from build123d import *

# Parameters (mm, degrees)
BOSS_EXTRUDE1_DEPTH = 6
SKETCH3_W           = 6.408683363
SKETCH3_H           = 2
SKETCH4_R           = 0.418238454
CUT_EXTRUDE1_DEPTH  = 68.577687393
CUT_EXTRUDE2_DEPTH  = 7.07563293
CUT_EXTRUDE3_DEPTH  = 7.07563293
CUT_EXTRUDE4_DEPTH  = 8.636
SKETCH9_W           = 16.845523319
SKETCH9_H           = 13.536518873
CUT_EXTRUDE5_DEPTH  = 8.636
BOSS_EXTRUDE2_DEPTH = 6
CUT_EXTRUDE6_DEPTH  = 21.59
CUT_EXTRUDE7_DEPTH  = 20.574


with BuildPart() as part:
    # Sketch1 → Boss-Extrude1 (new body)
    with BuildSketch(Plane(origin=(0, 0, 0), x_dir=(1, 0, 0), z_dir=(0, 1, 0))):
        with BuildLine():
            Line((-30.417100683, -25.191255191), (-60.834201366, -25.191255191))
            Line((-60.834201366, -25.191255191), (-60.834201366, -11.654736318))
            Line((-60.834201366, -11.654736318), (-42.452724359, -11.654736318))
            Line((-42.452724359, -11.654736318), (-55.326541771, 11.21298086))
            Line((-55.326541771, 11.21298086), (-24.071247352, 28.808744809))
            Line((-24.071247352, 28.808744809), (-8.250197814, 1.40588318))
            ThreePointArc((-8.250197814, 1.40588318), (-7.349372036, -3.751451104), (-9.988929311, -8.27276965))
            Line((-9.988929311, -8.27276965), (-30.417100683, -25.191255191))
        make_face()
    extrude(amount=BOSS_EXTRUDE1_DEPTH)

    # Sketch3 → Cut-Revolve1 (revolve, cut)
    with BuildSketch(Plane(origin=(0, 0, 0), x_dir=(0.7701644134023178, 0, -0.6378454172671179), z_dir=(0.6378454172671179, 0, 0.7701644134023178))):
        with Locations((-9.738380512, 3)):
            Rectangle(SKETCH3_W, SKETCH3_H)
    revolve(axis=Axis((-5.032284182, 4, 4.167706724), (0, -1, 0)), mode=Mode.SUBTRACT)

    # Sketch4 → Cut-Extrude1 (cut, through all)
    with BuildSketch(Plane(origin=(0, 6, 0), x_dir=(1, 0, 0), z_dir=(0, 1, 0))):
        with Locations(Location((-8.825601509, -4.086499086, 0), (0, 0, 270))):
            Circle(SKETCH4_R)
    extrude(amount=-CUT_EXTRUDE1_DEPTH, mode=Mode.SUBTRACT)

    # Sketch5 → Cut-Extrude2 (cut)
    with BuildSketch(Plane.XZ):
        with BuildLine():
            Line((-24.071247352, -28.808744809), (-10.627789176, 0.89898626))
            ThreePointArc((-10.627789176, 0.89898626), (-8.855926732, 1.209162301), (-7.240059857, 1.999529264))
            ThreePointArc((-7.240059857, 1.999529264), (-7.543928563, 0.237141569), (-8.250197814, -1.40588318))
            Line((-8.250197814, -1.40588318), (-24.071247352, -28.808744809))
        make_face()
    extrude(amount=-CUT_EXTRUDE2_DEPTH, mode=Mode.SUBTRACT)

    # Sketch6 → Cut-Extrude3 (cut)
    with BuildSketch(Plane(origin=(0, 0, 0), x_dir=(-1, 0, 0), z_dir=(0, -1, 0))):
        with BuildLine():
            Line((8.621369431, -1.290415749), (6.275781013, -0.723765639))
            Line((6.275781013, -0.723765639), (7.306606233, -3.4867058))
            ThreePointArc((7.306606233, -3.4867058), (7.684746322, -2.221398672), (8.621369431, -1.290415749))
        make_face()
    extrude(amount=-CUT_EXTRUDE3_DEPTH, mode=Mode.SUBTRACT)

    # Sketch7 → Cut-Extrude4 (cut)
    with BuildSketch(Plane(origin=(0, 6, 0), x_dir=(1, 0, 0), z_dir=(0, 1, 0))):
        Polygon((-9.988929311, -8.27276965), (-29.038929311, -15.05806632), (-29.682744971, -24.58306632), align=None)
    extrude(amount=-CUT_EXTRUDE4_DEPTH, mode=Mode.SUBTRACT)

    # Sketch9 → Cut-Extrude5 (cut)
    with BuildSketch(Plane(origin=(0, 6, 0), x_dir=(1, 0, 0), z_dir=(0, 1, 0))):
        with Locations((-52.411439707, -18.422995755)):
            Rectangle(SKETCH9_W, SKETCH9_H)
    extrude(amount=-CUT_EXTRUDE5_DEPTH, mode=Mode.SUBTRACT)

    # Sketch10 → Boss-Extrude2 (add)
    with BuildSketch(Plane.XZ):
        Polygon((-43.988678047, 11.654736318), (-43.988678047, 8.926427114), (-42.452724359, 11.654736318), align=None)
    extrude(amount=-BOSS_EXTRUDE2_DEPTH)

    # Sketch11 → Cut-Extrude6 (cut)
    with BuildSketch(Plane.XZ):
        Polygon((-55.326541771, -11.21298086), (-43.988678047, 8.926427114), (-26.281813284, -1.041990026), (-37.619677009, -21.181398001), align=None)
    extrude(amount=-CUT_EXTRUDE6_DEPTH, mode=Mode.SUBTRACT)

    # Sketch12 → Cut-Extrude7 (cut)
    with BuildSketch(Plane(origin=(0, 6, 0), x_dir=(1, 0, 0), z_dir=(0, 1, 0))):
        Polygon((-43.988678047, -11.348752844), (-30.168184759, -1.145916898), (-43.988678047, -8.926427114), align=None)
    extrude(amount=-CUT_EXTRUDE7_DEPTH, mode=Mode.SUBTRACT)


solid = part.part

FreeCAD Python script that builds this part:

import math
import FreeCAD as App
import Part
import Sketcher
from FreeCAD import Vector
Q = App.Units.Quantity

doc = App.newDocument("Part")
body = doc.addObject("PartDesign::Body", "Body")

# Sketch on XZ plane
sketch1 = body.newObject("Sketcher::SketchObject", "Sketch")
sketch1.AttachmentSupport = (doc.getObject("XZ_Plane"), [""])
sketch1.MapMode = "FlatFace"
sketch1.addGeometry(Part.LineSegment(Vector(-61, 25, 0), Vector(-30, 25, 0)), False)
sketch1.addGeometry(Part.LineSegment(Vector(-30, 25, 0), Vector(-10, 8, 0)), False)
sketch1.addGeometry(Part.ArcOfCircle(Part.Circle(Vector(-15, 2, 0), Vector(0, 0, 1), 8), math.radians(-30), math.radians(50)), False)
sketch1.addGeometry(Part.LineSegment(Vector(-8, -1, 0), Vector(-24, -29, 0)), False)
sketch1.addGeometry(Part.LineSegment(Vector(-24, -29, 0), Vector(-55, -11, 0)), False)
sketch1.addGeometry(Part.LineSegment(Vector(-55, -11, 0), Vector(-42, 12, 0)), False)
sketch1.addGeometry(Part.LineSegment(Vector(-42, 12, 0), Vector(-61, 12, 0)), False)
sketch1.addGeometry(Part.LineSegment(Vector(-61, 12, 0), Vector(-61, 25, 0)), False)
sketch1.addConstraint(Sketcher.Constraint("Coincident", 0, 2, 1, 1))
sketch1.addConstraint(Sketcher.Constraint("Tangent", 1, 2, 2, 2))
sketch1.addConstraint(Sketcher.Constraint("Tangent", 2, 1, 3, 1))
sketch1.addConstraint(Sketcher.Constraint("Coincident", 3, 2, 4, 1))
sketch1.addConstraint(Sketcher.Constraint("Coincident", 4, 2, 5, 1))
sketch1.addConstraint(Sketcher.Constraint("Coincident", 5, 2, 6, 1))
sketch1.addConstraint(Sketcher.Constraint("Coincident", 6, 2, 7, 1))
sketch1.addConstraint(Sketcher.Constraint("Coincident", 7, 2, 0, 1))
sketch1.addConstraint(Sketcher.Constraint("Horizontal", 0))
sketch1.addConstraint(Sketcher.Constraint("Horizontal", 6))
sketch1.addConstraint(Sketcher.Constraint("Vertical", 7))
sketch1.addConstraint(Sketcher.Constraint("Perpendicular", 4, 5))
sketch1.addConstraint(Sketcher.Constraint("Radius", 2, Q("0.3 in")))
sketch1.addConstraint(Sketcher.Constraint("Angle", 3, Q("-120 deg")))
sketch1.addConstraint(Sketcher.Constraint("DistanceX", 0, 1, 0, 2, Q("30.417101 mm")))
sketch1.addConstraint(Sketcher.Constraint("Distance", 3, Q("31.642099 mm")))
sketch1.addConstraint(Sketcher.Constraint("DistanceY", 7, 1, 7, 2, Q("13.536519 mm")))
sketch1.addConstraint(Sketcher.Constraint("DistanceX", 0, 2, -1, 1, Q("30.417101 mm")))
sketch1.addConstraint(Sketcher.Constraint("DistanceY", 3, 2, 0, 2, Q("54 mm")))
sketch1.addConstraint(Sketcher.Constraint("Distance", 1, Q("26.524429 mm")))
sketch1.addConstraint(Sketcher.Constraint("Distance", 5, Q("26.242478 mm")))
sketch1.addConstraint(Sketcher.Constraint("DistanceX", 6, 2, 6, 1, Q("18.381477 mm")))
sketch1.addConstraint(Sketcher.Constraint("DistanceY", -1, 1, 1, 2, Q("8.27277 mm")))
pad1 = body.newObject("PartDesign::Pad", "Pad")
pad1.Profile = sketch1
pad1.Length = 6
pad1.Reversed = True

# Sketch on an angled plane
sketch2 = body.newObject("Sketcher::SketchObject", "Sketch001")
sketch2.Placement = App.Placement(Vector(0, 0, 0), App.Rotation(Vector(0.770164413, 0, -0.637845417), Vector(0, 0.999999999, 0), Vector(0.637845417, 0, 0.770164413), "ZXY"))
sketch2.addGeometry(Part.LineSegment(Vector(-12.9, 4, 0), Vector(-12.9, 2, 0)), False)
sketch2.addGeometry(Part.LineSegment(Vector(-12.9, 2, 0), Vector(-6.5, 2, 0)), False)
sketch2.addGeometry(Part.LineSegment(Vector(-6.5, 2, 0), Vector(-6.5, 4, 0)), False)
sketch2.addGeometry(Part.LineSegment(Vector(-6.5, 4, 0), Vector(-12.9, 4, 0)), False)
sketch2.addGeometry(Part.LineSegment(Vector(-6.5, 4, 0), Vector(-6.5, 2, 0)), True)  # axis
sketch2.addConstraint(Sketcher.Constraint("Coincident", 0, 2, 1, 1))
sketch2.addConstraint(Sketcher.Constraint("Coincident", 1, 2, 2, 1))
sketch2.addConstraint(Sketcher.Constraint("Coincident", 2, 2, 3, 1))
sketch2.addConstraint(Sketcher.Constraint("Coincident", 3, 2, 0, 1))
sketch2.addConstraint(Sketcher.Constraint("Vertical", 0))
sketch2.addConstraint(Sketcher.Constraint("Horizontal", 1))
sketch2.addConstraint(Sketcher.Constraint("Vertical", 2))
sketch2.addConstraint(Sketcher.Constraint("Horizontal", 3))
sketch2.addConstraint(Sketcher.Constraint("Vertical", 4))
sketch2.addConstraint(Sketcher.Constraint("Coincident", 4, 1, 2, 2))
sketch2.addConstraint(Sketcher.Constraint("Horizontal", 0, 2, 4, 2))
sketch2.addConstraint(Sketcher.Constraint("DistanceY", 0, 2, 0, 1, Q("2 mm")))
sketch2.addConstraint(Sketcher.Constraint("DistanceY", -1, 1, 0, 2, Q("2 mm")))
sketch2.addConstraint(Sketcher.Constraint("DistanceX", 1, 1, 1, 2, Q("6.408683 mm")))
sketch2.addConstraint(Sketcher.Constraint("DistanceX", 1, 2, -1, 1, Q("6.534039 mm")))
groove = body.newObject("PartDesign::Groove", "Groove")
groove.Profile = sketch2
groove.ReferenceAxis = (sketch2, ["Axis0"])
groove.Angle = 360

# Sketch on XZ plane
sketch3 = body.newObject("Sketcher::SketchObject", "Sketch002")
sketch3.AttachmentSupport = (doc.getObject("XZ_Plane"), [""])
sketch3.MapMode = "FlatFace"
sketch3.AttachmentOffset = App.Placement(Vector(0, 0, -6), App.Rotation())
sketch3.addGeometry(Part.Circle(Vector(-8.83, 4.09, 0), Vector(0, 0, 1), 0.42), False)
sketch3.addConstraint(Sketcher.Constraint("Diameter", 0, Q("0.836477 mm")))
sketch3.addConstraint(Sketcher.Constraint("DistanceX", 0, 3, -1, 1, Q("8.825602 mm")))
sketch3.addConstraint(Sketcher.Constraint("DistanceY", -1, 1, 0, 3, Q("4.086499 mm")))
pocket1 = body.newObject("PartDesign::Pocket", "Pocket")
pocket1.Profile = sketch3
pocket1.Type = "ThroughAll"
pocket1.Reversed = True

# Sketch on XZ plane
sketch4 = body.newObject("Sketcher::SketchObject", "Sketch003")
sketch4.AttachmentSupport = (doc.getObject("XZ_Plane"), [""])
sketch4.MapMode = "FlatFace"
sketch4.addGeometry(Part.LineSegment(Vector(-10.6, 0.9, 0), Vector(-24.1, -28.8, 0)), False)
sketch4.addGeometry(Part.LineSegment(Vector(-24.1, -28.8, 0), Vector(-8.3, -1.4, 0)), False)
sketch4.addGeometry(Part.ArcOfCircle(Part.Circle(Vector(-14.8, 2.4, 0), Vector(0, 0, 1), 7.6), math.radians(-30), math.radians(-3)), False)
sketch4.addGeometry(Part.ArcOfCircle(Part.Circle(Vector(-10.8, 7.3, 0), Vector(0, 0, 1), 6.4), math.radians(-88), math.radians(-56)), False)
sketch4.addConstraint(Sketcher.Constraint("Coincident", 0, 2, 1, 1))
sketch4.addConstraint(Sketcher.Constraint("Tangent", 1, 2, 2, 1))
sketch4.addConstraint(Sketcher.Constraint("Coincident", 2, 2, 3, 2))
sketch4.addConstraint(Sketcher.Constraint("Coincident", 3, 1, 0, 1))
sketch4.addConstraint(Sketcher.Constraint("Radius", 2, Q("0.3 in")))
sketch4.addConstraint(Sketcher.Constraint("Angle", 1, Q("60 deg")))
sketch4.addConstraint(Sketcher.Constraint("Radius", 3, Q("6.408683 mm")))
sketch4.addConstraint(Sketcher.Constraint("Distance", 1, Q("31.642099 mm")))
sketch4.addConstraint(Sketcher.Constraint("DistanceX", 3, 3, -1, 1, Q("10.835998 mm")))
sketch4.addConstraint(Sketcher.Constraint("DistanceX", 3, 3, 1, 2, Q("2.5858 mm")))
sketch4.addConstraint(Sketcher.Constraint("DistanceY", 3, 1, 3, 3, Q("6.4053 mm")))
sketch4.addConstraint(Sketcher.Constraint("Distance", 0, Q("32.607911 mm")))
sketch4.addConstraint(Sketcher.Constraint("DistanceY", -1, 1, 2, 2, Q("1.999529 mm")))
pocket2 = body.newObject("PartDesign::Pocket", "Pocket001")
pocket2.Profile = sketch4
pocket2.Length = 7.075633

# Sketch on XZ plane
sketch5 = body.newObject("Sketcher::SketchObject", "Sketch004")
sketch5.AttachmentSupport = (doc.getObject("XZ_Plane"), [""])
sketch5.MapMode = "FlatFace"
sketch5.addGeometry(Part.LineSegment(Vector(-8.6, 1.3, 0), Vector(-6.3, 0.7, 0)), False)
sketch5.addGeometry(Part.LineSegment(Vector(-6.3, 0.7, 0), Vector(-7.3, 3.5, 0)), False)
sketch5.addGeometry(Part.ArcOfCircle(Part.Circle(Vector(-10, 3.6, 0), Vector(0, 0, 1), 2.7), math.radians(-59), math.radians(-2)), False)
sketch5.addConstraint(Sketcher.Constraint("Coincident", 0, 2, 1, 1))
sketch5.addConstraint(Sketcher.Constraint("Coincident", 1, 2, 2, 2))
sketch5.addConstraint(Sketcher.Constraint("Coincident", 2, 1, 0, 1))
sketch5.addConstraint(Sketcher.Constraint("Radius", 2, Q("2.679339 mm")))
sketch5.addConstraint(Sketcher.Constraint("DistanceX", 2, 3, -1, 1, Q("9.983649 mm")))
sketch5.addConstraint(Sketcher.Constraint("DistanceY", -1, 1, 2, 3, Q("3.597589 mm")))
sketch5.addConstraint(Sketcher.Constraint("DistanceX", 0, 2, -1, 1, Q("6.275781 mm")))
sketch5.addConstraint(Sketcher.Constraint("DistanceX", 2, 1, -1, 1, Q("8.621369 mm")))
sketch5.addConstraint(Sketcher.Constraint("DistanceY", 0, 2, 1, 2, Q("2.76294 mm")))
sketch5.addConstraint(Sketcher.Constraint("DistanceY", 0, 2, 2, 1, Q("0.56665 mm")))
pocket3 = body.newObject("PartDesign::Pocket", "Pocket002")
pocket3.Profile = sketch5
pocket3.Length = 7.075633

# Sketch on XZ plane
sketch6 = body.newObject("Sketcher::SketchObject", "Sketch005")
sketch6.AttachmentSupport = (doc.getObject("XZ_Plane"), [""])
sketch6.MapMode = "FlatFace"
sketch6.AttachmentOffset = App.Placement(Vector(0, 0, -6), App.Rotation())
sketch6.addGeometry(Part.LineSegment(Vector(-10, 8, 0), Vector(-29, 15, 0)), False)
sketch6.addGeometry(Part.LineSegment(Vector(-29, 15, 0), Vector(-30, 25, 0)), False)
sketch6.addGeometry(Part.LineSegment(Vector(-30, 25, 0), Vector(-10, 8, 0)), False)
sketch6.addConstraint(Sketcher.Constraint("Coincident", 0, 2, 1, 1))
sketch6.addConstraint(Sketcher.Constraint("Coincident", 1, 2, 2, 1))
sketch6.addConstraint(Sketcher.Constraint("Coincident", 2, 2, 0, 1))
sketch6.addConstraint(Sketcher.Constraint("DistanceX", 0, 2, 2, 2, Q("0.75 in")))
sketch6.addConstraint(Sketcher.Constraint("DistanceY", 0, 2, 1, 2, Q("0.375 in")))
sketch6.addConstraint(Sketcher.Constraint("DistanceX", 0, 2, -1, 1, Q("29.038929 mm")))
sketch6.addConstraint(Sketcher.Constraint("DistanceY", -1, 1, 2, 2, Q("8.27277 mm")))
sketch6.addConstraint(Sketcher.Constraint("Distance", 0, Q("20.222333 mm")))
sketch6.addConstraint(Sketcher.Constraint("Distance", 1, Q("9.546734 mm")))
pocket4 = body.newObject("PartDesign::Pocket", "Pocket003")
pocket4.Profile = sketch6
pocket4.Length = Q("0.34 in")
pocket4.Reversed = True

# Sketch on XZ plane
sketch7 = body.newObject("Sketcher::SketchObject", "Sketch006")
sketch7.AttachmentSupport = (doc.getObject("XZ_Plane"), [""])
sketch7.MapMode = "FlatFace"
sketch7.AttachmentOffset = App.Placement(Vector(0, 0, -6), App.Rotation())
sketch7.addGeometry(Part.LineSegment(Vector(-61, 12, 0), Vector(-61, 25, 0)), False)
sketch7.addGeometry(Part.LineSegment(Vector(-61, 25, 0), Vector(-44, 25, 0)), False)
sketch7.addGeometry(Part.LineSegment(Vector(-44, 25, 0), Vector(-44, 12, 0)), False)
sketch7.addGeometry(Part.LineSegment(Vector(-44, 12, 0), Vector(-61, 12, 0)), False)
sketch7.addConstraint(Sketcher.Constraint("Coincident", 0, 2, 1, 1))
sketch7.addConstraint(Sketcher.Constraint("Coincident", 1, 2, 2, 1))
sketch7.addConstraint(Sketcher.Constraint("Coincident", 2, 2, 3, 1))
sketch7.addConstraint(Sketcher.Constraint("Coincident", 3, 2, 0, 1))
sketch7.addConstraint(Sketcher.Constraint("Vertical", 0))
sketch7.addConstraint(Sketcher.Constraint("Horizontal", 1))
sketch7.addConstraint(Sketcher.Constraint("Vertical", 2))
sketch7.addConstraint(Sketcher.Constraint("Horizontal", 3))
sketch7.addConstraint(Sketcher.Constraint("DistanceY", 0, 1, 0, 2, Q("13.536519 mm")))
sketch7.addConstraint(Sketcher.Constraint("DistanceX", 0, 2, -1, 1, Q("60.834201 mm")))
sketch7.addConstraint(Sketcher.Constraint("DistanceX", 1, 1, 1, 2, Q("16.845523 mm")))
sketch7.addConstraint(Sketcher.Constraint("DistanceY", -1, 1, 0, 2, Q("25.191255 mm")))
pocket5 = body.newObject("PartDesign::Pocket", "Pocket004")
pocket5.Profile = sketch7
pocket5.Length = Q("0.34 in")
pocket5.Reversed = True

# Sketch on XZ plane
sketch8 = body.newObject("Sketcher::SketchObject", "Sketch007")
sketch8.AttachmentSupport = (doc.getObject("XZ_Plane"), [""])
sketch8.MapMode = "FlatFace"
sketch8.addGeometry(Part.LineSegment(Vector(-44, 11.7, 0), Vector(-44, 8.9, 0)), False)
sketch8.addGeometry(Part.LineSegment(Vector(-44, 8.9, 0), Vector(-42.5, 11.7, 0)), False)
sketch8.addGeometry(Part.LineSegment(Vector(-42.5, 11.7, 0), Vector(-44, 11.7, 0)), False)
sketch8.addConstraint(Sketcher.Constraint("Coincident", 0, 2, 1, 1))
sketch8.addConstraint(Sketcher.Constraint("Coincident", 1, 2, 2, 1))
sketch8.addConstraint(Sketcher.Constraint("Coincident", 2, 2, 0, 1))
sketch8.addConstraint(Sketcher.Constraint("Vertical", 0))
sketch8.addConstraint(Sketcher.Constraint("Horizontal", 2))
sketch8.addConstraint(Sketcher.Constraint("DistanceY", 0, 2, 0, 1, Q("2.728309 mm")))
sketch8.addConstraint(Sketcher.Constraint("DistanceX", 2, 2, 2, 1, Q("1.535954 mm")))
sketch8.addConstraint(Sketcher.Constraint("DistanceX", 0, 2, -1, 1, Q("43.988678 mm")))
sketch8.addConstraint(Sketcher.Constraint("DistanceY", -1, 1, 0, 2, Q("8.926427 mm")))
pad2 = body.newObject("PartDesign::Pad", "Pad001")
pad2.Profile = sketch8
pad2.Length = 6
pad2.Reversed = True

# Sketch on XZ plane
sketch9 = body.newObject("Sketcher::SketchObject", "Sketch008")
sketch9.AttachmentSupport = (doc.getObject("XZ_Plane"), [""])
sketch9.MapMode = "FlatFace"
sketch9.addGeometry(Part.LineSegment(Vector(-44, 9, 0), Vector(-55, -11, 0)), False)
sketch9.addGeometry(Part.LineSegment(Vector(-55, -11, 0), Vector(-38, -21, 0)), False)
sketch9.addGeometry(Part.LineSegment(Vector(-38, -21, 0), Vector(-26, -1, 0)), False)
sketch9.addGeometry(Part.LineSegment(Vector(-26, -1, 0), Vector(-44, 9, 0)), False)
sketch9.addConstraint(Sketcher.Constraint("Coincident", 0, 2, 1, 1))
sketch9.addConstraint(Sketcher.Constraint("Coincident", 1, 2, 2, 1))
sketch9.addConstraint(Sketcher.Constraint("Coincident", 2, 2, 3, 1))
sketch9.addConstraint(Sketcher.Constraint("Coincident", 3, 2, 0, 1))
sketch9.addConstraint(Sketcher.Constraint("Perpendicular", 0, 1))
sketch9.addConstraint(Sketcher.Constraint("Perpendicular", 1, 2))
sketch9.addConstraint(Sketcher.Constraint("Perpendicular", 2, 3))
sketch9.addConstraint(Sketcher.Constraint("Distance", 1, Q("0.8 in")))
sketch9.addConstraint(Sketcher.Constraint("DistanceY", 1, 2, -1, 1, Q("21.181398 mm")))
sketch9.addConstraint(Sketcher.Constraint("DistanceX", 3, 2, 1, 2, Q("6.369001 mm")))
sketch9.addConstraint(Sketcher.Constraint("Distance", 0, Q("23.111532 mm")))
sketch9.addConstraint(Sketcher.Constraint("DistanceX", 0, 2, -1, 1, Q("55.326542 mm")))
pocket6 = body.newObject("PartDesign::Pocket", "Pocket005")
pocket6.Profile = sketch9
pocket6.Length = Q("0.85 in")

# Sketch on XZ plane
sketch10 = body.newObject("Sketcher::SketchObject", "Sketch009")
sketch10.AttachmentSupport = (doc.getObject("XZ_Plane"), [""])
sketch10.MapMode = "FlatFace"
sketch10.AttachmentOffset = App.Placement(Vector(0, 0, -6), App.Rotation())
sketch10.addGeometry(Part.LineSegment(Vector(-44, 11.3, 0), Vector(-30.2, 1.1, 0)), False)
sketch10.addGeometry(Part.LineSegment(Vector(-30.2, 1.1, 0), Vector(-44, 8.9, 0)), False)
sketch10.addGeometry(Part.LineSegment(Vector(-44, 8.9, 0), Vector(-44, 11.3, 0)), False)
sketch10.addConstraint(Sketcher.Constraint("Coincident", 0, 2, 1, 1))
sketch10.addConstraint(Sketcher.Constraint("Coincident", 1, 2, 2, 1))
sketch10.addConstraint(Sketcher.Constraint("Coincident", 2, 2, 0, 1))
sketch10.addConstraint(Sketcher.Constraint("Vertical", 2))
sketch10.addConstraint(Sketcher.Constraint("Distance", 0, Q("17.178588 mm")))
sketch10.addConstraint(Sketcher.Constraint("DistanceY", 2, 1, 2, 2, Q("2.422326 mm")))
sketch10.addConstraint(Sketcher.Constraint("DistanceX", 1, 2, -1, 1, Q("43.988678 mm")))
sketch10.addConstraint(Sketcher.Constraint("DistanceY", 0, 2, 1, 2, Q("7.78051 mm")))
sketch10.addConstraint(Sketcher.Constraint("DistanceY", -1, 1, 0, 2, Q("1.145917 mm")))
pocket7 = body.newObject("PartDesign::Pocket", "Pocket006")
pocket7.Profile = sketch10
pocket7.Length = Q("0.81 in")
pocket7.Reversed = True

doc.recompute()
